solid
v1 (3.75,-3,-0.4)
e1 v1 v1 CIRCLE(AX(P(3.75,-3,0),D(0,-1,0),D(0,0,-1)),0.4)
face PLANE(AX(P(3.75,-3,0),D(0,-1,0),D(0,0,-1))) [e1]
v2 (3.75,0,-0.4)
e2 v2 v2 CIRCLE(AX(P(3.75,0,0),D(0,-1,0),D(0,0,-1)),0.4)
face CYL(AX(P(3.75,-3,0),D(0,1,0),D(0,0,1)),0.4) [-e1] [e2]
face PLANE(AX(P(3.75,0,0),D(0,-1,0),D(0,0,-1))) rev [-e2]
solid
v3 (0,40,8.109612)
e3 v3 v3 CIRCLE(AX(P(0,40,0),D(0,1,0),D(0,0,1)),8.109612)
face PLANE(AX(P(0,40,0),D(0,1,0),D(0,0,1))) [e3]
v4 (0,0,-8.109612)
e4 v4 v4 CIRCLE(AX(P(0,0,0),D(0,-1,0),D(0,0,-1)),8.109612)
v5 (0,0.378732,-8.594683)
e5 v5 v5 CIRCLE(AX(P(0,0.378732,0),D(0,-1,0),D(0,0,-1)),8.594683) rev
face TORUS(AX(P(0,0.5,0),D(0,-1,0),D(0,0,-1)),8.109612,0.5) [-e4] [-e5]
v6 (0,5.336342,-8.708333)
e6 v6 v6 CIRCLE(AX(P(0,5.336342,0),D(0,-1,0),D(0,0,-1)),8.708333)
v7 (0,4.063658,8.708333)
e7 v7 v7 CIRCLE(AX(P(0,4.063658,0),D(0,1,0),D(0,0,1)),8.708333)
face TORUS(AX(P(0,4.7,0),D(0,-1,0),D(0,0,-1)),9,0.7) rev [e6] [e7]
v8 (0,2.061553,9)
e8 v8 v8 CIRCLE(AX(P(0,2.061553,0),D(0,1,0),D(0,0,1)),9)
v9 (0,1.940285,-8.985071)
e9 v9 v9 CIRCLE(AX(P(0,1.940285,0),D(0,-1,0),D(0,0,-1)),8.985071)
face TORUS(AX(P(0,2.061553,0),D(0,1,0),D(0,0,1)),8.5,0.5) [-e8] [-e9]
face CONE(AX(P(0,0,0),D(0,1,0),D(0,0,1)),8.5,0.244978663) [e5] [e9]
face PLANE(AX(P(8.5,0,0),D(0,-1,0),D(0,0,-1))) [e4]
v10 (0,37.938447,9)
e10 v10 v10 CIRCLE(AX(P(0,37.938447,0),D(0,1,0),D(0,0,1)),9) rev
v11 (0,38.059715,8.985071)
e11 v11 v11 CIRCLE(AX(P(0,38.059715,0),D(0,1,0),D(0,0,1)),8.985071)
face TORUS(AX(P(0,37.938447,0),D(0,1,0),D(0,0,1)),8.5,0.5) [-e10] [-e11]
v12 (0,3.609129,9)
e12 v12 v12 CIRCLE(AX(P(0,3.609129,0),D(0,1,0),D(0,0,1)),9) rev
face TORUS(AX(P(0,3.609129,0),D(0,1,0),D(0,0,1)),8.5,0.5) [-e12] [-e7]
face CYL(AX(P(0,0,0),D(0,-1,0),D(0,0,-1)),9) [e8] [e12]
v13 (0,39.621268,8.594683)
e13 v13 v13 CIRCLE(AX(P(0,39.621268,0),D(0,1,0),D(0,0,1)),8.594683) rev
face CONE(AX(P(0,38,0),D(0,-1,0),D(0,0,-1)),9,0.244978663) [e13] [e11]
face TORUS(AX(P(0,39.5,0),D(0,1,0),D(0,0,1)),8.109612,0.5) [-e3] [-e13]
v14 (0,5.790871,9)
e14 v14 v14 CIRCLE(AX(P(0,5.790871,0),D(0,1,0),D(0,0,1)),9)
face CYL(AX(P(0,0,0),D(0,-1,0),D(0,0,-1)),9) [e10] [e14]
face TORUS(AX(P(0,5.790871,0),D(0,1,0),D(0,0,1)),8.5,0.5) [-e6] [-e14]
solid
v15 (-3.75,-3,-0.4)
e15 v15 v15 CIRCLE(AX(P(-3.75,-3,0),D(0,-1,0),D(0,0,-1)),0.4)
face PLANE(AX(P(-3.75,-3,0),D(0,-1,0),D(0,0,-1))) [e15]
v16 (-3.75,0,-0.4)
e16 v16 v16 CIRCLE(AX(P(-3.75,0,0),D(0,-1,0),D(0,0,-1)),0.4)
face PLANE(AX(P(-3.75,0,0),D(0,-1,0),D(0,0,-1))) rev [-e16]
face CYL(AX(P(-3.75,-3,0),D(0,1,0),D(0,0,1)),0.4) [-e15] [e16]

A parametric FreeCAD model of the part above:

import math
import FreeCAD as App
import Part
import Sketcher
from FreeCAD import Vector
Q = App.Units.Quantity


def edges_at(feature, points):
    """Names of the edges that pass closest to the given points."""
    edges = feature.Shape.Edges
    near = lambda p: min(range(len(edges)), key=lambda i: edges[i].distToShape(Part.Vertex(*p))[0])
    return sorted({f"Edge{near(p) + 1}" for p in points})

doc = App.newDocument("Part")
body = doc.addObject("PartDesign::Body", "Body")

# Sketch on XY plane
sketch1 = body.newObject("Sketcher::SketchObject", "Sketch")
sketch1.AttachmentSupport = (doc.getObject("XY_Plane"), [""])
sketch1.MapMode = "FlatFace"
sketch1.addGeometry(Part.LineSegment(Vector(8.5, 40, 0), Vector(0, 40, 0)), False)
sketch1.addGeometry(Part.LineSegment(Vector(0, 40, 0), Vector(0, 0, 0)), False)
sketch1.addGeometry(Part.LineSegment(Vector(0, 0, 0), Vector(8.5, 0, 0)), False)
sketch1.addGeometry(Part.LineSegment(Vector(8.5, 0, 0), Vector(9, 2, 0)), False)
sketch1.addGeometry(Part.LineSegment(Vector(9, 2, 0), Vector(9, 4, 0)), False)
sketch1.addGeometry(Part.ArcOfCircle(Part.Circle(Vector(9, 4.7, 0), Vector(0, 0, 1), 0.7), math.radians(90), math.radians(270)), False)
sketch1.addGeometry(Part.LineSegment(Vector(9, 5.4, 0), Vector(9, 38, 0)), False)
sketch1.addGeometry(Part.LineSegment(Vector(9, 38, 0), Vector(8.5, 40, 0)), False)
sketch1.addConstraint(Sketcher.Constraint("Coincident", 0, 2, 1, 1))
sketch1.addConstraint(Sketcher.Constraint("Coincident", 1, 2, 2, 1))
sketch1.addConstraint(Sketcher.Constraint("Coincident", 2, 2, 3, 1))
sketch1.addConstraint(Sketcher.Constraint("Coincident", 3, 2, 4, 1))
sketch1.addConstraint(Sketcher.Constraint("Coincident", 4, 2, 5, 2))
sketch1.addConstraint(Sketcher.Constraint("Coincident", 5, 1, 6, 1))
sketch1.addConstraint(Sketcher.Constraint("Coincident", 6, 2, 7, 1))
sketch1.addConstraint(Sketcher.Constraint("Coincident", 7, 2, 0, 1))
sketch1.addConstraint(Sketcher.Constraint("Horizontal", 0))
sketch1.addConstraint(Sketcher.Constraint("Vertical", 1))
sketch1.addConstraint(Sketcher.Constraint("Horizontal", 2))
sketch1.addConstraint(Sketcher.Constraint("Vertical", 4))
sketch1.addConstraint(Sketcher.Constraint("Vertical", 6))
sketch1.addConstraint(Sketcher.Constraint("Coincident", 1, 2, -1, 1))
sketch1.addConstraint(Sketcher.Constraint("Vertical", 5, 3, 3, 2))
sketch1.addConstraint(Sketcher.Constraint("Vertical", 4, 2, 5, 1))
sketch1.addConstraint(Sketcher.Constraint("Vertical", 2, 2, 7, 2))
sketch1.addConstraint(Sketcher.Constraint("Equal", 3, 7))
sketch1.addConstraint(Sketcher.Constraint("Radius", 5, Q("0.7 mm")))
sketch1.addConstraint(Sketcher.Constraint("DistanceY", 1, 2, 1, 1, Q("40 mm")))
sketch1.addConstraint(Sketcher.Constraint("DistanceY", 4, 1, 4, 2, Q("2 mm")))
sketch1.addConstraint(Sketcher.Constraint("DistanceX", 0, 2, 0, 1, Q("8.5 mm")))
sketch1.addConstraint(Sketcher.Constraint("DistanceY", 6, 1, 6, 2, Q("32.6 mm")))
sketch1.addConstraint(Sketcher.Constraint("DistanceX", -1, 1, 5, 3, Q("9 mm")))
revolution = body.newObject("PartDesign::Revolution", "Revolution")
revolution.Profile = sketch1
revolution.ReferenceAxis = (sketch1, ["V_Axis"])
revolution.Angle = 360
doc.recompute()

fillet = body.newObject("PartDesign::Fillet", "Fillet")
fillet.Base = (revolution, edges_at(revolution, [
    (0, 40, 8.5),
    (0, 38, 9),
    (0, 5.4, 9),
    (0, 4, 9),
    (0, 2, 9),
    (0, 0, 8.5),
]))
fillet.Radius = 0.5
body2 = doc.addObject("PartDesign::Body", "Body001")

# Sketch on XZ plane
sketch2 = body2.newObject("Sketcher::SketchObject", "Sketch001")
sketch2.AttachmentSupport = (doc.getObject("XZ_Plane001"), [""])
sketch2.MapMode = "FlatFace"
sketch2.addGeometry(Part.Circle(Vector(-3.75, 0, 0), Vector(0, 0, 1), 0.4), False)
sketch2.addConstraint(Sketcher.Constraint("PointOnObject", 0, 3, -1))
sketch2.addConstraint(Sketcher.Constraint("Diameter", 0, Q("0.8 mm")))
sketch2.addConstraint(Sketcher.Constraint("DistanceX", 0, 3, -1, 1, Q("3.75 mm")))
pad1 = body2.newObject("PartDesign::Pad", "Pad")
pad1.Profile = sketch2
pad1.Length = 3
body3 = doc.addObject("PartDesign::Body", "Body002")

# Sketch on XZ plane
sketch3 = body3.newObject("Sketcher::SketchObject", "Sketch002")
sketch3.AttachmentSupport = (doc.getObject("XZ_Plane002"), [""])
sketch3.MapMode = "FlatFace"
sketch3.addGeometry(Part.Circle(Vector(3.75, 0, 0), Vector(0, 0, 1), 0.4), False)
sketch3.addConstraint(Sketcher.Constraint("PointOnObject", 0, 3, -1))
sketch3.addConstraint(Sketcher.Constraint("Diameter", 0, Q("0.8 mm")))
sketch3.addConstraint(Sketcher.Constraint("DistanceX", -1, 1, 0, 3, Q("3.75 mm")))
pad2 = body3.newObject("PartDesign::Pad", "Pad001")
pad2.Profile = sketch3
pad2.Length = 3

doc.recompute()
